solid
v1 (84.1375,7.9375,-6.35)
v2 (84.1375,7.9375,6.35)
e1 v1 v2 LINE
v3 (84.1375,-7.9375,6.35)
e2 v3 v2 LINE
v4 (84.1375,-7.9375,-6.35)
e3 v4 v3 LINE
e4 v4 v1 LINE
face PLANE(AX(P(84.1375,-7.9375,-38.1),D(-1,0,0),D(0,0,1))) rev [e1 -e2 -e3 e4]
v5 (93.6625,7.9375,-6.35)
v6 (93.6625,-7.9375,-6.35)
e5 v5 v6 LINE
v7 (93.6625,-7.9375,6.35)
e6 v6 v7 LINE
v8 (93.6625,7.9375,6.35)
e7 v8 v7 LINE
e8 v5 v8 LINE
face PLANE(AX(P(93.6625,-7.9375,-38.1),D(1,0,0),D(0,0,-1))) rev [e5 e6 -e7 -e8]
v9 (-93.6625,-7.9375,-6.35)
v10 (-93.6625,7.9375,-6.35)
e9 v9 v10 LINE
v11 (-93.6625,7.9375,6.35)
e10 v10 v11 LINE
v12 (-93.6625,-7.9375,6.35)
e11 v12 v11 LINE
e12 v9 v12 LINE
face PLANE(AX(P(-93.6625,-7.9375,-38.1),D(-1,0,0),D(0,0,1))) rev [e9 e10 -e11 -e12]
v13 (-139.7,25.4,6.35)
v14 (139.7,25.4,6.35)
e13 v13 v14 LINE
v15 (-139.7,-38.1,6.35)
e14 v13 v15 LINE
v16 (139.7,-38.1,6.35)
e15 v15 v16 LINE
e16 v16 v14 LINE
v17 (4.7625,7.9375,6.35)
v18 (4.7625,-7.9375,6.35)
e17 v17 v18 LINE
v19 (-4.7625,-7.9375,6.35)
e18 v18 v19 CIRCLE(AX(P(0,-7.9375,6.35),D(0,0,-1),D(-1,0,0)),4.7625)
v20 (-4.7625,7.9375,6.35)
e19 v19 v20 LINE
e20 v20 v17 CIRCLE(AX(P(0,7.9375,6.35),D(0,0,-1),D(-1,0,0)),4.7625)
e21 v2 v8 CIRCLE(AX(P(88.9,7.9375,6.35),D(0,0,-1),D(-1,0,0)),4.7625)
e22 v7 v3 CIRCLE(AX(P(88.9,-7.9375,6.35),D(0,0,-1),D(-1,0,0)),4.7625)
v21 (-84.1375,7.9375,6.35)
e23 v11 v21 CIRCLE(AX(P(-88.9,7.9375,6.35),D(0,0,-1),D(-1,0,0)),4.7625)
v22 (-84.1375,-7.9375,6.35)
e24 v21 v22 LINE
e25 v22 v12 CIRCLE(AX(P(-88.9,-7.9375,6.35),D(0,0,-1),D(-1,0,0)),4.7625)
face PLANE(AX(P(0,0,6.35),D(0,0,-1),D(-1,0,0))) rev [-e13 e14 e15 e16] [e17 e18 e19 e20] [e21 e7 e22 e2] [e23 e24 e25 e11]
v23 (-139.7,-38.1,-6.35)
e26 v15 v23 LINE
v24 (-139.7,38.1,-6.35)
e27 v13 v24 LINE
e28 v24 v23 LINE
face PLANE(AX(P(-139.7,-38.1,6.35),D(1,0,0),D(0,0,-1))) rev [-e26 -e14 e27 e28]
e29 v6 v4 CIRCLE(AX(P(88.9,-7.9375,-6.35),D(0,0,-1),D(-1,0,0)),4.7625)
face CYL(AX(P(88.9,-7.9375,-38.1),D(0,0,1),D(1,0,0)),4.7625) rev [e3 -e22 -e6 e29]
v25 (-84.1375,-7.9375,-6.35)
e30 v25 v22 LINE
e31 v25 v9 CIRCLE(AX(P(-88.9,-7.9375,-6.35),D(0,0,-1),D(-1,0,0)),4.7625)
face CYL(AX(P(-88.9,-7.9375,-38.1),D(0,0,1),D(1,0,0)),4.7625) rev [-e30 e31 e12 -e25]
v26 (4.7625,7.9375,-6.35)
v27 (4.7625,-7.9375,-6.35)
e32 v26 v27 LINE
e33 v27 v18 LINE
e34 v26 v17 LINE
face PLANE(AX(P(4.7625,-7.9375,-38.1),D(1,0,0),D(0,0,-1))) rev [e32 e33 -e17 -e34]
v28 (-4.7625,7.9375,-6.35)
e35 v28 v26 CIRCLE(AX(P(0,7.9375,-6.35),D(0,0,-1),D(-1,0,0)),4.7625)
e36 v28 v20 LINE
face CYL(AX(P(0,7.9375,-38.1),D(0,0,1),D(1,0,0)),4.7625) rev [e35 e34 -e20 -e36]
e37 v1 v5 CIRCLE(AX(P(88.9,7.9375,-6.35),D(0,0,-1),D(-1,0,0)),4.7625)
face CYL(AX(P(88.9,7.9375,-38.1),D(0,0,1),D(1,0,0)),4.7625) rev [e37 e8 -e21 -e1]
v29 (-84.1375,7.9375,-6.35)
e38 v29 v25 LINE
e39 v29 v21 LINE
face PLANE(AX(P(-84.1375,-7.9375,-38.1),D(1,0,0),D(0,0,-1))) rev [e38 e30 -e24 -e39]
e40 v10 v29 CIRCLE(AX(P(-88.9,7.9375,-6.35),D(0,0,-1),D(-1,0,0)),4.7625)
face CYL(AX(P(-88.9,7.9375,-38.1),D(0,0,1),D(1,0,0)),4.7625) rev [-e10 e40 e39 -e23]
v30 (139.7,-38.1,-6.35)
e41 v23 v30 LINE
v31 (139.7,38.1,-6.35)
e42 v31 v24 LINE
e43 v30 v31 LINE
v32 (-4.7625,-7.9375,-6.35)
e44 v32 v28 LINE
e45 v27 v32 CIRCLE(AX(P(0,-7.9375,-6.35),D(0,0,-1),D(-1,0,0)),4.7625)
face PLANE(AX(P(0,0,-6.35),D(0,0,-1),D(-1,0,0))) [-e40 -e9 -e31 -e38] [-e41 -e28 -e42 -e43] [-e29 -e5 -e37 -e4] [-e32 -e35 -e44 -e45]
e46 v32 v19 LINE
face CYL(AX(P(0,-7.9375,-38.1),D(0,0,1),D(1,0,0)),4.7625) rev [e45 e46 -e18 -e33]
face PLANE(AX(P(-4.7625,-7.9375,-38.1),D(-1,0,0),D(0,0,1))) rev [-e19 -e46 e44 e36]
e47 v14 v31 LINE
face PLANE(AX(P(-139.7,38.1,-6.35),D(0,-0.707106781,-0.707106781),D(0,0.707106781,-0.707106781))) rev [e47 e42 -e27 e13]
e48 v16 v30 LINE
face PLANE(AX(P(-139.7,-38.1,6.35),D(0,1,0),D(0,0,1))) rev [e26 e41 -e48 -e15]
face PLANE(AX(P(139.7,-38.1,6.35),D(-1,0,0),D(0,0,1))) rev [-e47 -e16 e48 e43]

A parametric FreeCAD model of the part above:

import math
import FreeCAD as App
import Part
import Sketcher

V = App.Vector
Q = App.Units.Quantity


def add_polygon(sketch, points):
    """Adds a closed chain of lines whose ends are joined by coincident constraints."""
    first, n = sketch.GeometryCount, len(points)
    for a, b in zip(points, points[1:] + points[:1]):
        sketch.addGeometry(Part.LineSegment(App.Vector(*a, 0), App.Vector(*b, 0)), False)
    for i in range(n):
        sketch.addConstraint(Sketcher.Constraint("Coincident", first + i, 2, first + (i + 1) % n, 1))

doc = App.newDocument("Part")
body = doc.addObject("PartDesign::Body", "Body")

sketch1 = body.newObject("Sketcher::SketchObject", "Sketch")
sketch1.AttachmentSupport = (doc.getObject("XY_Plane"), [""])
sketch1.MapMode = "FlatFace"
add_polygon(sketch1, [(-139.7, 38.1), (-139.7, -38.1), (139.7, -38.1), (139.7, 38.1)])
sketch1.addConstraint(Sketcher.Constraint("Vertical", 0))
sketch1.addConstraint(Sketcher.Constraint("Horizontal", 1))
sketch1.addConstraint(Sketcher.Constraint("Vertical", 2))
sketch1.addConstraint(Sketcher.Constraint("Horizontal", 3))
sketch1.addConstraint(Sketcher.Constraint("Symmetric", 0, 2, 2, 2, -1, 1))
sketch1.addConstraint(Sketcher.Constraint("DistanceX", 1, 1, 1, 2, Q("11 in")))
sketch1.addConstraint(Sketcher.Constraint("DistanceY", 0, 2, 0, 1, Q("3 in")))
pad1 = body.newObject("PartDesign::Pad", "Pad")
pad1.Profile = sketch1
pad1.Length = Q("0.5 in")
pad1.Midplane = True

sketch2 = body.newObject("Sketcher::SketchObject", "Sketch001")
sketch2.AttachmentSupport = (doc.getObject("YZ_Plane"), [""])
sketch2.MapMode = "FlatFace"
add_polygon(sketch2, [(25.4, 6.35), (38.1, -6.35), (38.1, 6.35)])
sketch2.addConstraint(Sketcher.Constraint("Vertical", 1))
sketch2.addConstraint(Sketcher.Constraint("Horizontal", 2))
sketch2.addConstraint(Sketcher.Constraint("Equal", 2, 1))
sketch2.addConstraint(Sketcher.Constraint("DistanceX", 2, 2, 2, 1, Q("0.5 in")))
sketch2.addConstraint(Sketcher.Constraint("DistanceX", -1, 1, 2, 2, Q("1 in")))
sketch2.addConstraint(Sketcher.Constraint("DistanceY", 0, 2, -1, 1, Q("0.25 in")))
pocket1 = body.newObject("PartDesign::Pocket", "Pocket")
pocket1.Profile = sketch2
pocket1.Length = Q("11 in")
pocket1.Midplane = True

sketch3 = body.newObject("Sketcher::SketchObject", "Sketch002")
sketch3.AttachmentSupport = (doc.getObject("XY_Plane"), [""])
sketch3.MapMode = "FlatFace"
sketch3.addGeometry(Part.LineSegment(V(84.1375, 7.9375, 0), V(84.1375, -7.9375, 0)), False)
sketch3.addGeometry(Part.ArcOfCircle(Part.Circle(V(88.9, -7.9375, 0), V(0, 0, 1), 4.7625), math.radians(180), math.radians(360)), False)
sketch3.addGeometry(Part.LineSegment(V(93.6625, -7.9375, 0), V(93.6625, 7.9375, 0)), False)
sketch3.addGeometry(Part.ArcOfCircle(Part.Circle(V(88.9, 7.9375, 0), V(0, 0, 1), 4.7625), math.radians(0), math.radians(180)), False)
sketch3.addGeometry(Part.LineSegment(V(-4.7625, 7.9375, 0), V(-4.7625, -7.9375, 0)), False)
sketch3.addGeometry(Part.ArcOfCircle(Part.Circle(V(0, -7.9375, 0), V(0, 0, 1), 4.7625), math.radians(180), math.radians(360)), False)
sketch3.addGeometry(Part.LineSegment(V(4.7625, -7.9375, 0), V(4.7625, 7.9375, 0)), False)
sketch3.addGeometry(Part.ArcOfCircle(Part.Circle(V(0, 7.9375, 0), V(0, 0, 1), 4.7625), math.radians(0), math.radians(180)), False)
sketch3.addGeometry(Part.LineSegment(V(-93.6625, 7.9375, 0), V(-93.6625, -7.9375, 0)), False)
sketch3.addGeometry(Part.ArcOfCircle(Part.Circle(V(-88.9, -7.9375, 0), V(0, 0, 1), 4.7625), math.radians(180), math.radians(360)), False)
sketch3.addGeometry(Part.LineSegment(V(-84.1375, -7.9375, 0), V(-84.1375, 7.9375, 0)), False)
sketch3.addGeometry(Part.ArcOfCircle(Part.Circle(V(-88.9, 7.9375, 0), V(0, 0, 1), 4.7625), math.radians(0), math.radians(180)), False)
sketch3.addConstraint(Sketcher.Constraint("Tangent", 0, 2, 1, 1))
sketch3.addConstraint(Sketcher.Constraint("Tangent", 1, 2, 2, 1))
sketch3.addConstraint(Sketcher.Constraint("Tangent", 2, 2, 3, 1))
sketch3.addConstraint(Sketcher.Constraint("Tangent", 3, 2, 0, 1))
sketch3.addConstraint(Sketcher.Constraint("Tangent", 4, 2, 5, 1))
sketch3.addConstraint(Sketcher.Constraint("Tangent", 5, 2, 6, 1))
sketch3.addConstraint(Sketcher.Constraint("Tangent", 6, 2, 7, 1))
sketch3.addConstraint(Sketcher.Constraint("Tangent", 7, 2, 4, 1))
sketch3.addConstraint(Sketcher.Constraint("Tangent", 8, 2, 9, 1))
sketch3.addConstraint(Sketcher.Constraint("Tangent", 9, 2, 10, 1))
sketch3.addConstraint(Sketcher.Constraint("Tangent", 10, 2, 11, 1))
sketch3.addConstraint(Sketcher.Constraint("Tangent", 11, 2, 8, 1))
sketch3.addConstraint(Sketcher.Constraint("Vertical", 0))
sketch3.addConstraint(Sketcher.Constraint("Vertical", 2))
sketch3.addConstraint(Sketcher.Constraint("Vertical", 4))
sketch3.addConstraint(Sketcher.Constraint("Vertical", 6))
sketch3.addConstraint(Sketcher.Constraint("Vertical", 8))
sketch3.addConstraint(Sketcher.Constraint("Vertical", 10))
sketch3.addConstraint(Sketcher.Constraint("Equal", 3, 5))
sketch3.addConstraint(Sketcher.Constraint("Equal", 7, 9))
sketch3.addConstraint(Sketcher.Constraint("Symmetric", 5, 3, 7, 3, -1, 1))
sketch3.addConstraint(Sketcher.Constraint("Symmetric", 3, 3, 9, 3, -1, 1))
sketch3.addConstraint(Sketcher.Constraint("Horizontal", 1, 3, 5, 3))
sketch3.addConstraint(Sketcher.Constraint("Horizontal", 3, 3, 7, 3))
sketch3.addConstraint(Sketcher.Constraint("Horizontal", 7, 3, 11, 3))
sketch3.addConstraint(Sketcher.Constraint("Radius", 1, Q("0.1875 in")))
sketch3.addConstraint(Sketcher.Constraint("DistanceX", 9, 3, 1, 3, Q("7 in")))
sketch3.addConstraint(Sketcher.Constraint("DistanceY", 0, 2, 0, 1, Q("0.625 in")))
pocket2 = body.newObject("PartDesign::Pocket", "Pocket001")
pocket2.Profile = sketch3
pocket2.Length = Q("3 in")
pocket2.Midplane = True

doc.recompute()
